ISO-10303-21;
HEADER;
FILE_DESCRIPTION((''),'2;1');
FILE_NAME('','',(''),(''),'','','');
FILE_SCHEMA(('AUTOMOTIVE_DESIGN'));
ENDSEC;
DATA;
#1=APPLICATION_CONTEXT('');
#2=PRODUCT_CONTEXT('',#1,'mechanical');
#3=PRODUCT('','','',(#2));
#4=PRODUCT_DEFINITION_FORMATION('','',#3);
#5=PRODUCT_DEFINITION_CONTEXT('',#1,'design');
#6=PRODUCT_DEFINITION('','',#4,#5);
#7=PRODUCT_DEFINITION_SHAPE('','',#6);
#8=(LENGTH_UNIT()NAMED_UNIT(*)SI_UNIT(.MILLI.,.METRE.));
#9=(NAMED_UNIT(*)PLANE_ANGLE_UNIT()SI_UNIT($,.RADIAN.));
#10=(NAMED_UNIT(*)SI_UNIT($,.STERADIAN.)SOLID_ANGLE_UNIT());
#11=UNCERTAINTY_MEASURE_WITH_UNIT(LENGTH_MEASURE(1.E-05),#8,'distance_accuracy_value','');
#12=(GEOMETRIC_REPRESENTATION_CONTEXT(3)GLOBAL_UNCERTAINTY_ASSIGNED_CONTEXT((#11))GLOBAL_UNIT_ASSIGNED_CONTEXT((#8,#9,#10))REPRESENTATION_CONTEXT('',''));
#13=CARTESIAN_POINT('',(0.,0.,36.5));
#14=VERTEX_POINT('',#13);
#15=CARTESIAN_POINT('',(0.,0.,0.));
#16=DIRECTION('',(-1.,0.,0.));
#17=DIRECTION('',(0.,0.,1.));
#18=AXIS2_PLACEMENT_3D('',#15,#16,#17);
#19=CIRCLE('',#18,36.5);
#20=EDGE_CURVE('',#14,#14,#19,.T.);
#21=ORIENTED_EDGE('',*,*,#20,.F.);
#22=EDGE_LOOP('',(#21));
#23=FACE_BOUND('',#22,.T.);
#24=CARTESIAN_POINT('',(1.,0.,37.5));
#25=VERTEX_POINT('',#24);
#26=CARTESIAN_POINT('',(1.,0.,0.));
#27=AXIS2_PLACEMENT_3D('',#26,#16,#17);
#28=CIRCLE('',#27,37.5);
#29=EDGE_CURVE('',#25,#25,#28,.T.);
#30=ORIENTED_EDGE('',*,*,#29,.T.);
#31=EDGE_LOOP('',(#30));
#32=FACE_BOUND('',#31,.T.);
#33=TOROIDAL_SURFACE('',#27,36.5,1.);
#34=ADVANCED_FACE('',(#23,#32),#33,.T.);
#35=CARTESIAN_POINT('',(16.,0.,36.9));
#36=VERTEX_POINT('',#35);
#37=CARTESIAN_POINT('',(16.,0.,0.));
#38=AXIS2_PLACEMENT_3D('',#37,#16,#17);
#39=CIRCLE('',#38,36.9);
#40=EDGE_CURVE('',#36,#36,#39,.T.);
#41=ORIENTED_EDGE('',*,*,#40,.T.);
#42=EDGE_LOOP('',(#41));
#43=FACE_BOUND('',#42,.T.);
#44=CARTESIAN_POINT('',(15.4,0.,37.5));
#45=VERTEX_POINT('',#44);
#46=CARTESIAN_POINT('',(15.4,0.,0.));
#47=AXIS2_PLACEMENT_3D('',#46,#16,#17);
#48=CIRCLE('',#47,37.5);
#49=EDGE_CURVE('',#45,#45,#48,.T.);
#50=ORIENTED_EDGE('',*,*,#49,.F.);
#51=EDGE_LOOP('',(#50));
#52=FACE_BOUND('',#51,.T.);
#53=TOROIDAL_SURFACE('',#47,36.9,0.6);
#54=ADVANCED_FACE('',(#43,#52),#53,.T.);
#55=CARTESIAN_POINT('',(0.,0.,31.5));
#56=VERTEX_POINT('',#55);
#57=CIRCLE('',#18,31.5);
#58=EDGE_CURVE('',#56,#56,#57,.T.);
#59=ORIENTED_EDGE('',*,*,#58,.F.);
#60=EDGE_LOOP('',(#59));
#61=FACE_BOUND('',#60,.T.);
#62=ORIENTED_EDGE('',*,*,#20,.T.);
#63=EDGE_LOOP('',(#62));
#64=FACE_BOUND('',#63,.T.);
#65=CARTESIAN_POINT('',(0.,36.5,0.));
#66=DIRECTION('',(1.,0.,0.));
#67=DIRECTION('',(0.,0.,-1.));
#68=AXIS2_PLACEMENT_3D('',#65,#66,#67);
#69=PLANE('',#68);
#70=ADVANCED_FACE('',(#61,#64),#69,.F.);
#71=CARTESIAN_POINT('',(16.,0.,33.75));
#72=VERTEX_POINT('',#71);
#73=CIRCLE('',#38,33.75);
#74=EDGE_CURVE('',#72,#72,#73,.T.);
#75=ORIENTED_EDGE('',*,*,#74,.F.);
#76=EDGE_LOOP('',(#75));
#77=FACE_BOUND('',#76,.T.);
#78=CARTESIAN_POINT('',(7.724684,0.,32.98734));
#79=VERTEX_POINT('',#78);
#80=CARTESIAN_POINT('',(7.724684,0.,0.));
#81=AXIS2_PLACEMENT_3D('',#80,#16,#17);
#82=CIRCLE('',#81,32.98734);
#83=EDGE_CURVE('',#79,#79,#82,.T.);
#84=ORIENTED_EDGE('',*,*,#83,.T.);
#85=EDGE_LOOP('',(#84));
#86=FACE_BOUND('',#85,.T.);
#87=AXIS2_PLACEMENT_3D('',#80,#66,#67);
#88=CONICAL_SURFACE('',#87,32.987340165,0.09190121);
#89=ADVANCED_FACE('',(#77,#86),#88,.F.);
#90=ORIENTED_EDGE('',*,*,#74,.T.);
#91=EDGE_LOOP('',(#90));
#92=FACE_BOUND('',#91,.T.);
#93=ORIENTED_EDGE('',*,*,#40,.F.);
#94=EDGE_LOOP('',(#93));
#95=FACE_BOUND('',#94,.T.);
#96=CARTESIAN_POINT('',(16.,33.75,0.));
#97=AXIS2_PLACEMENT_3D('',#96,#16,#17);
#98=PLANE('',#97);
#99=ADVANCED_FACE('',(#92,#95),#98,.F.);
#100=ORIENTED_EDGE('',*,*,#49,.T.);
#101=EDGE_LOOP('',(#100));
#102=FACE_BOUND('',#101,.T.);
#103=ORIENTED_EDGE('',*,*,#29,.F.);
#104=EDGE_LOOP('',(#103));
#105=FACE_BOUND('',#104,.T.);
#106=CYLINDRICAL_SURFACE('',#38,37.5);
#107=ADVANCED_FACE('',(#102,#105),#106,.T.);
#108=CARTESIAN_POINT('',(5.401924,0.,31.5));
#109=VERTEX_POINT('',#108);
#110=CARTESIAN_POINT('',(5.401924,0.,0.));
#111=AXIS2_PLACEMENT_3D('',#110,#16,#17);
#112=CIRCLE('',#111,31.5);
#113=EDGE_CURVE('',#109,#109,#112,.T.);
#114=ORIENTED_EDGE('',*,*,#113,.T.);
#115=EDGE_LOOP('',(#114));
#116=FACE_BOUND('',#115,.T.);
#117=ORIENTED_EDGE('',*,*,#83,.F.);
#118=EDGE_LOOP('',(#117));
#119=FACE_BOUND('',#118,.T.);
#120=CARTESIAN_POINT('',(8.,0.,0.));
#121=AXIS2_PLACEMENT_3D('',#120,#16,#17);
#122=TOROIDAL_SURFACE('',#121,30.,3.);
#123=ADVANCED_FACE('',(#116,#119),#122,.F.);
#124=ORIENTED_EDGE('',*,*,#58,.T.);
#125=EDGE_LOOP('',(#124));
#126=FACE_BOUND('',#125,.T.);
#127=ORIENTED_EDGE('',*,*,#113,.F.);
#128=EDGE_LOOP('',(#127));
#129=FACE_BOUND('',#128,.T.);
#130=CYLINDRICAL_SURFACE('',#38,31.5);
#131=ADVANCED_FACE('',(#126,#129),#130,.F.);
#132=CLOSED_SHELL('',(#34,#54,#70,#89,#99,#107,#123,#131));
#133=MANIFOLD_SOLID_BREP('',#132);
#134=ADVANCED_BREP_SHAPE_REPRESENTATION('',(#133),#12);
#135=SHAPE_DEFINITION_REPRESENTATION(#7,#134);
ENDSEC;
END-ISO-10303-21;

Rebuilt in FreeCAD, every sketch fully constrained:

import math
import FreeCAD as App
import Part
import Sketcher
from FreeCAD import Vector
Q = App.Units.Quantity

doc = App.newDocument("Part")
body = doc.addObject("PartDesign::Body", "Body")

sketch1 = doc.addObject("Sketcher::SketchObject", "Sketch")
body.addObject(sketch1)
sketch1.AttachmentSupport = (doc.XY_Plane, [""])
sketch1.MapMode = "FlatFace"
sketch1.addGeometry([
    Part.LineSegment(Vector(0, 31.5, 0), Vector(5.4, 31.5, 0)),
    Part.ArcOfCircle(Part.Circle(Vector(8, 30, 0), Vector(0, 0, 1), 3), math.radians(95), math.radians(150)),
    Part.LineSegment(Vector(7.7, 33, 0), Vector(16, 33.8, 0)),
    Part.LineSegment(Vector(16, 33.8, 0), Vector(16, 36.9, 0)),
    Part.ArcOfCircle(Part.Circle(Vector(15.4, 36.9, 0), Vector(0, 0, 1), 0.6), math.radians(0), math.radians(90)),
    Part.LineSegment(Vector(15.4, 37.5, 0), Vector(1, 37.5, 0)),
    Part.ArcOfCircle(Part.Circle(Vector(1, 36.5, 0), Vector(0, 0, 1), 1), math.radians(90), math.radians(180)),
    Part.LineSegment(Vector(0, 36.5, 0), Vector(0, 31.5, 0)),
], False)
sketch1.addConstraint([
    Sketcher.Constraint("Coincident", 0, 2, 1, 2),
    Sketcher.Constraint("Tangent", 1, 1, 2, 1),
    Sketcher.Constraint("Coincident", 2, 2, 3, 1),
    Sketcher.Constraint("Tangent", 3, 2, 4, 1),
    Sketcher.Constraint("Tangent", 4, 2, 5, 1),
    Sketcher.Constraint("Tangent", 5, 2, 6, 1),
    Sketcher.Constraint("Tangent", 6, 2, 7, 1),
    Sketcher.Constraint("Coincident", 7, 2, 0, 1),
    Sketcher.Constraint("Horizontal", 0),
    Sketcher.Constraint("Vertical", 3),
    Sketcher.Constraint("Horizontal", 5),
    Sketcher.Constraint("Vertical", 7),
    Sketcher.Constraint("PointOnObject", 6, 2, -2),
    Sketcher.Constraint("Radius", 1, Q("3 mm")),
    Sketcher.Constraint("Radius", 6, Q("1 mm")),
    Sketcher.Constraint("Radius", 4, Q("0.6 mm")),
    Sketcher.Constraint("DistanceY", 7, 2, 7, 1, Q("5 mm")),
    Sketcher.Constraint("DistanceX", 5, 2, 5, 1, Q("14.4 mm")),
    Sketcher.Constraint("DistanceX", -1, 1, 1, 3, Q("8 mm")),
    Sketcher.Constraint("DistanceY", -1, 1, 1, 3, Q("30 mm")),
    Sketcher.Constraint("DistanceY", 3, 1, 3, 2, Q("3.15 mm")),
    Sketcher.Constraint("DistanceY", -1, 1, 4, 3, Q("36.9 mm")),
])
revolution = doc.addObject("PartDesign::Revolution", "Revolution")
body.addObject(revolution)
revolution.Profile = sketch1
revolution.ReferenceAxis = (sketch1, ["H_Axis"])
revolution.Angle = 360

doc.recompute()
